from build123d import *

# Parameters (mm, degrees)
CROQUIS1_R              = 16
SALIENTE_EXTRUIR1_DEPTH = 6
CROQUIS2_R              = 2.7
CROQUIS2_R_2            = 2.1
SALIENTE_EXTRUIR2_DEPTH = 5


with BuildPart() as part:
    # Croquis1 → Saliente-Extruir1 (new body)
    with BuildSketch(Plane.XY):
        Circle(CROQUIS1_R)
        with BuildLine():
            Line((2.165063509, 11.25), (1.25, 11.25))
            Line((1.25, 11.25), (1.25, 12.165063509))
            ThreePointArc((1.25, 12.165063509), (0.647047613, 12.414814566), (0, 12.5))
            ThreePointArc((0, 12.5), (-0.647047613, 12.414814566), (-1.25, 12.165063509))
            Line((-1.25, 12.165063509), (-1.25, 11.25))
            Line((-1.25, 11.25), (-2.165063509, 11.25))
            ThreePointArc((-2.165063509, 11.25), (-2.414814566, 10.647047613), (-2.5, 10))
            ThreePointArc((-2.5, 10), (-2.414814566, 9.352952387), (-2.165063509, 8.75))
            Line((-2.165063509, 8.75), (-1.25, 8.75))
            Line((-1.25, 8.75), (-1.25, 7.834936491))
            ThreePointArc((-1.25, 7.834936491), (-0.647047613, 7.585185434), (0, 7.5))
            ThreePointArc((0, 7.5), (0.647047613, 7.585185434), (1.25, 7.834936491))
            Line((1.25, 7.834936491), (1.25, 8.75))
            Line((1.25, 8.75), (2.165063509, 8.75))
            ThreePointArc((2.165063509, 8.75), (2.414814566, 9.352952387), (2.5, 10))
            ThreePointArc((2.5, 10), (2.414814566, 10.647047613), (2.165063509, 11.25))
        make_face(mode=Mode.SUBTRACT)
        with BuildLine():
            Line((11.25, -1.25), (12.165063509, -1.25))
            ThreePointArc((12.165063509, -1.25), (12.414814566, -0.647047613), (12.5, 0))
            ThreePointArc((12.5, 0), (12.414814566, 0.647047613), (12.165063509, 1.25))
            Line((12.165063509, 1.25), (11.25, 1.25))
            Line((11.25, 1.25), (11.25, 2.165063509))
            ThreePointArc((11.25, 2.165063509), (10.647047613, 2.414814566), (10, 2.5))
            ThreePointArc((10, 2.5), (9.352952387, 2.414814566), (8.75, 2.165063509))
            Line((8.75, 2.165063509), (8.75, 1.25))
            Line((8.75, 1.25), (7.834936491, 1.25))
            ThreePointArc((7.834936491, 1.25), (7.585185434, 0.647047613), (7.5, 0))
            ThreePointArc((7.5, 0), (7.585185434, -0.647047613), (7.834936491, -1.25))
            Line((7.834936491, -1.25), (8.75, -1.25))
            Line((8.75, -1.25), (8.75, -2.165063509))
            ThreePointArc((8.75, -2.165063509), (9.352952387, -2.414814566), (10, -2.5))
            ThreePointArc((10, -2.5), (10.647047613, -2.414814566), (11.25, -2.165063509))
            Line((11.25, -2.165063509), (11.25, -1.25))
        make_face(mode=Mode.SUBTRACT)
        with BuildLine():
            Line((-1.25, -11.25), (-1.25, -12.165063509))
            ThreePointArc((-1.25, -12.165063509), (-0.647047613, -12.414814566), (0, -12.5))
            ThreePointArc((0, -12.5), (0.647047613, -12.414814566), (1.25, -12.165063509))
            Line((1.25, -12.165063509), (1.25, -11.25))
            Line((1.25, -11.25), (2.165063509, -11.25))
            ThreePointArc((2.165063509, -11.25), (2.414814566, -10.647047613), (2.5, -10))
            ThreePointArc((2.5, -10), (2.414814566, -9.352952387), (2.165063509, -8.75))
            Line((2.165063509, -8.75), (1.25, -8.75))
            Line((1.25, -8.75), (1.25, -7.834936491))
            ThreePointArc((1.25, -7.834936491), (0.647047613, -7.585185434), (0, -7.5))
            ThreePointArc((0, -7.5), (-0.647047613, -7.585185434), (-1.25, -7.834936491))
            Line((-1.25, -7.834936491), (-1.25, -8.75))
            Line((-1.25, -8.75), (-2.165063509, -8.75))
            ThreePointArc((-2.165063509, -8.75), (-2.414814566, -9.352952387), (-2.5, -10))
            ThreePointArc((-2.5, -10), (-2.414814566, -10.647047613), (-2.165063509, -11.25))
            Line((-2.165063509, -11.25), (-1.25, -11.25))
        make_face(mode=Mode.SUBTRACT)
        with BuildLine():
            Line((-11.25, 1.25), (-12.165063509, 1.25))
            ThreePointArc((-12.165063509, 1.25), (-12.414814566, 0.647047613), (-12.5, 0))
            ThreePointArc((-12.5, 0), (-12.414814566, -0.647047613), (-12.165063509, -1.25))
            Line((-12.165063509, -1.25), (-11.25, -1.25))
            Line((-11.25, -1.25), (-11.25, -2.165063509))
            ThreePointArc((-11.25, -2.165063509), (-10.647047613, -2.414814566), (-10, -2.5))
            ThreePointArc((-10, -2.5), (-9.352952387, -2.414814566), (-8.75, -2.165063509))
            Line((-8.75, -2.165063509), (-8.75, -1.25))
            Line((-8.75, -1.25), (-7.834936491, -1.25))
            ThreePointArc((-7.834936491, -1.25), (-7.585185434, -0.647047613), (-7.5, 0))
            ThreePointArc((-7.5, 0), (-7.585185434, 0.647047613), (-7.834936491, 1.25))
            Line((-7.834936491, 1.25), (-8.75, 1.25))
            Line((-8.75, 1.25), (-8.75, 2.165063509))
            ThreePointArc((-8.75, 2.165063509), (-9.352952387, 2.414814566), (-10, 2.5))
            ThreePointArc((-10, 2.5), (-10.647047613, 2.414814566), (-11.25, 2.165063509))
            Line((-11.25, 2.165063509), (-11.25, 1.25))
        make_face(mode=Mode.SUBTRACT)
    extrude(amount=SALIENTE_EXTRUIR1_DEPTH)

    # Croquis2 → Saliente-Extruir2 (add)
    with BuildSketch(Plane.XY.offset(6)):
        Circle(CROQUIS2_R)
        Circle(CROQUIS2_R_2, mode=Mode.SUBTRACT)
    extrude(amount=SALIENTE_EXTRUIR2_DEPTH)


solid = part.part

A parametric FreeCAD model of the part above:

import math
import FreeCAD as App
import Part
import Sketcher
Q = App.Units.Quantity

doc = App.newDocument("Part")
params = doc.addObject("Spreadsheet::Sheet", "Params")
for row, (alias, value) in enumerate([
    ("sketch1_diameter", "32 mm"),
    ("sketch1_radius", "2.5 mm"),
    ("pad1_length", "6 mm"),
    ("sketch2_diameter", "5.4 mm"),
    ("sketch2_diameter2", "4.2 mm"),
    ("pad2_length", "5 mm"),
], start=1):
    params.set(f"A{row}", alias)
    params.set(f"B{row}", "=" + value)
    params.setAlias(f"B{row}", alias)

body = doc.addObject("PartDesign::Body", "Body")

sketch1 = body.newObject("Sketcher::SketchObject", "Sketch")
sketch1.AttachmentSupport = (doc.getObject("XY_Plane"), [""])
sketch1.MapMode = "FlatFace"
sketch1.addGeometry([
    Part.Circle(App.Vector(0, 0, 0), App.Vector(0, 0, 1), 16),
    Part.LineSegment(App.Vector(-1.2, -12.2, 0), App.Vector(-1.2, -11.2, 0)),
    Part.LineSegment(App.Vector(-1.2, -11.2, 0), App.Vector(-2.2, -11.2, 0)),
    Part.ArcOfCircle(Part.Circle(App.Vector(0, -10, 0), App.Vector(0, 0, 1), 2.5), math.radians(180), math.radians(210)),
    Part.ArcOfCircle(Part.Circle(App.Vector(0, -10, 0), App.Vector(0, 0, 1), 2.5), math.radians(150), math.radians(180)),
    Part.LineSegment(App.Vector(-2.2, -8.8, 0), App.Vector(-1.2, -8.8, 0)),
    Part.LineSegment(App.Vector(-1.2, -8.8, 0), App.Vector(-1.2, -7.8, 0)),
    Part.ArcOfCircle(Part.Circle(App.Vector(0, -10, 0), App.Vector(0, 0, 1), 2.5), math.radians(90), math.radians(120)),
    Part.ArcOfCircle(Part.Circle(App.Vector(0, -10, 0), App.Vector(0, 0, 1), 2.5), math.radians(60), math.radians(90)),
    Part.LineSegment(App.Vector(1.2, -7.8, 0), App.Vector(1.2, -8.8, 0)),
    Part.LineSegment(App.Vector(1.2, -8.8, 0), App.Vector(2.2, -8.8, 0)),
    Part.ArcOfCircle(Part.Circle(App.Vector(0, -10, 0), App.Vector(0, 0, 1), 2.5), math.radians(0), math.radians(30)),
    Part.ArcOfCircle(Part.Circle(App.Vector(0, -10, 0), App.Vector(0, 0, 1), 2.5), math.radians(-30), math.radians(0)),
    Part.LineSegment(App.Vector(2.2, -11.2, 0), App.Vector(1.2, -11.2, 0)),
    Part.LineSegment(App.Vector(1.2, -11.2, 0), App.Vector(1.2, -12.2, 0)),
    Part.ArcOfCircle(Part.Circle(App.Vector(0, -10, 0), App.Vector(0, 0, 1), 2.5), math.radians(-90), math.radians(-60)),
    Part.ArcOfCircle(Part.Circle(App.Vector(0, -10, 0), App.Vector(0, 0, 1), 2.5), math.radians(-120), math.radians(-90)),
    Part.LineSegment(App.Vector(-12.2, 1.2, 0), App.Vector(-11.2, 1.2, 0)),
    Part.LineSegment(App.Vector(-11.2, 1.2, 0), App.Vector(-11.2, 2.2, 0)),
    Part.ArcOfCircle(Part.Circle(App.Vector(-10, 0, 0), App.Vector(0, 0, 1), 2.5), math.radians(90), math.radians(120)),
    Part.ArcOfCircle(Part.Circle(App.Vector(-10, 0, 0), App.Vector(0, 0, 1), 2.5), math.radians(60), math.radians(90)),
    Part.LineSegment(App.Vector(-8.8, 2.2, 0), App.Vector(-8.8, 1.2, 0)),
    Part.LineSegment(App.Vector(-8.8, 1.2, 0), App.Vector(-7.8, 1.2, 0)),
    Part.ArcOfCircle(Part.Circle(App.Vector(-10, 0, 0), App.Vector(0, 0, 1), 2.5), math.radians(0), math.radians(30)),
    Part.ArcOfCircle(Part.Circle(App.Vector(-10, 0, 0), App.Vector(0, 0, 1), 2.5), math.radians(-30), math.radians(0)),
    Part.LineSegment(App.Vector(-7.8, -1.2, 0), App.Vector(-8.8, -1.2, 0)),
    Part.LineSegment(App.Vector(-8.8, -1.2, 0), App.Vector(-8.8, -2.2, 0)),
    Part.ArcOfCircle(Part.Circle(App.Vector(-10, 0, 0), App.Vector(0, 0, 1), 2.5), math.radians(-90), math.radians(-60)),
    Part.ArcOfCircle(Part.Circle(App.Vector(-10, 0, 0), App.Vector(0, 0, 1), 2.5), math.radians(-120), math.radians(-90)),
    Part.LineSegment(App.Vector(-11.2, -2.2, 0), App.Vector(-11.2, -1.2, 0)),
    Part.LineSegment(App.Vector(-11.2, -1.2, 0), App.Vector(-12.2, -1.2, 0)),
    Part.ArcOfCircle(Part.Circle(App.Vector(-10, 0, 0), App.Vector(0, 0, 1), 2.5), math.radians(180), math.radians(210)),
    Part.ArcOfCircle(Part.Circle(App.Vector(-10, 0, 0), App.Vector(0, 0, 1), 2.5), math.radians(150), math.radians(180)),
    Part.LineSegment(App.Vector(12.2, -1.2, 0), App.Vector(11.2, -1.2, 0)),
    Part.LineSegment(App.Vector(11.2, -1.2, 0), App.Vector(11.2, -2.2, 0)),
    Part.ArcOfCircle(Part.Circle(App.Vector(10, 0, 0), App.Vector(0, 0, 1), 2.5), math.radians(-90), math.radians(-60)),
    Part.ArcOfCircle(Part.Circle(App.Vector(10, 0, 0), App.Vector(0, 0, 1), 2.5), math.radians(-120), math.radians(-90)),
    Part.LineSegment(App.Vector(8.8, -2.2, 0), App.Vector(8.8, -1.2, 0)),
    Part.LineSegment(App.Vector(8.8, -1.2, 0), App.Vector(7.8, -1.2, 0)),
    Part.ArcOfCircle(Part.Circle(App.Vector(10, 0, 0), App.Vector(0, 0, 1), 2.5), math.radians(180), math.radians(210)),
    Part.ArcOfCircle(Part.Circle(App.Vector(10, 0, 0), App.Vector(0, 0, 1), 2.5), math.radians(150), math.radians(180)),
    Part.LineSegment(App.Vector(7.8, 1.2, 0), App.Vector(8.8, 1.2, 0)),
    Part.LineSegment(App.Vector(8.8, 1.2, 0), App.Vector(8.8, 2.2, 0)),
    Part.ArcOfCircle(Part.Circle(App.Vector(10, 0, 0), App.Vector(0, 0, 1), 2.5), math.radians(90), math.radians(120)),
    Part.ArcOfCircle(Part.Circle(App.Vector(10, 0, 0), App.Vector(0, 0, 1), 2.5), math.radians(60), math.radians(90)),
    Part.LineSegment(App.Vector(11.2, 2.2, 0), App.Vector(11.2, 1.2, 0)),
    Part.LineSegment(App.Vector(11.2, 1.2, 0), App.Vector(12.2, 1.2, 0)),
    Part.ArcOfCircle(Part.Circle(App.Vector(10, 0, 0), App.Vector(0, 0, 1), 2.5), math.radians(0), math.radians(30)),
    Part.ArcOfCircle(Part.Circle(App.Vector(10, 0, 0), App.Vector(0, 0, 1), 2.5), math.radians(-30), math.radians(0)),
    Part.LineSegment(App.Vector(1.2, 11.2, 0), App.Vector(2.2, 11.2, 0)),
    Part.ArcOfCircle(Part.Circle(App.Vector(0, 10, 0), App.Vector(0, 0, 1), 2.5), math.radians(0), math.radians(30)),
    Part.ArcOfCircle(Part.Circle(App.Vector(0, 10, 0), App.Vector(0, 0, 1), 2.5), math.radians(-30), math.radians(0)),
    Part.LineSegment(App.Vector(2.2, 8.8, 0), App.Vector(1.2, 8.8, 0)),
    Part.LineSegment(App.Vector(1.2, 8.8, 0), App.Vector(1.2, 7.8, 0)),
    Part.ArcOfCircle(Part.Circle(App.Vector(0, 10, 0), App.Vector(0, 0, 1), 2.5), math.radians(-90), math.radians(-60)),
    Part.ArcOfCircle(Part.Circle(App.Vector(0, 10, 0), App.Vector(0, 0, 1), 2.5), math.radians(-120), math.radians(-90)),
    Part.LineSegment(App.Vector(-1.2, 7.8, 0), App.Vector(-1.2, 8.8, 0)),
    Part.LineSegment(App.Vector(-1.2, 8.8, 0), App.Vector(-2.2, 8.8, 0)),
    Part.ArcOfCircle(Part.Circle(App.Vector(0, 10, 0), App.Vector(0, 0, 1), 2.5), math.radians(180), math.radians(210)),
    Part.ArcOfCircle(Part.Circle(App.Vector(0, 10, 0), App.Vector(0, 0, 1), 2.5), math.radians(150), math.radians(180)),
    Part.LineSegment(App.Vector(-2.2, 11.2, 0), App.Vector(-1.2, 11.2, 0)),
    Part.LineSegment(App.Vector(-1.2, 11.2, 0), App.Vector(-1.2, 12.2, 0)),
    Part.ArcOfCircle(Part.Circle(App.Vector(0, 10, 0), App.Vector(0, 0, 1), 2.5), math.radians(90), math.radians(120)),
    Part.ArcOfCircle(Part.Circle(App.Vector(0, 10, 0), App.Vector(0, 0, 1), 2.5), math.radians(60), math.radians(90)),
    Part.LineSegment(App.Vector(1.2, 12.2, 0), App.Vector(1.2, 11.2, 0)),
], False)
sketch1.addConstraint([
    Sketcher.Constraint("Coincident", 1, 2, 2, 1),
    Sketcher.Constraint("Coincident", 2, 2, 3, 2),
    Sketcher.Constraint("Tangent", 3, 1, 4, 2),
    Sketcher.Constraint("Coincident", 4, 1, 5, 1),
    Sketcher.Constraint("Coincident", 5, 2, 6, 1),
    Sketcher.Constraint("Coincident", 6, 2, 7, 2),
    Sketcher.Constraint("Tangent", 7, 1, 8, 2),
    Sketcher.Constraint("Coincident", 8, 1, 9, 1),
    Sketcher.Constraint("Coincident", 9, 2, 10, 1),
    Sketcher.Constraint("Coincident", 10, 2, 11, 2),
    Sketcher.Constraint("Tangent", 11, 1, 12, 2),
    Sketcher.Constraint("Coincident", 12, 1, 13, 1),
    Sketcher.Constraint("Coincident", 13, 2, 14, 1),
    Sketcher.Constraint("Coincident", 14, 2, 15, 2),
    Sketcher.Constraint("Tangent", 15, 1, 16, 2),
    Sketcher.Constraint("Coincident", 16, 1, 1, 1),
    Sketcher.Constraint("Coincident", 17, 2, 18, 1),
    Sketcher.Constraint("Coincident", 18, 2, 19, 2),
    Sketcher.Constraint("Tangent", 19, 1, 20, 2),
    Sketcher.Constraint("Coincident", 20, 1, 21, 1),
    Sketcher.Constraint("Coincident", 21, 2, 22, 1),
    Sketcher.Constraint("Coincident", 22, 2, 23, 2),
    Sketcher.Constraint("Tangent", 23, 1, 24, 2),
    Sketcher.Constraint("Coincident", 24, 1, 25, 1),
    Sketcher.Constraint("Coincident", 25, 2, 26, 1),
    Sketcher.Constraint("Coincident", 26, 2, 27, 2),
    Sketcher.Constraint("Tangent", 27, 1, 28, 2),
    Sketcher.Constraint("Coincident", 28, 1, 29, 1),
    Sketcher.Constraint("Coincident", 29, 2, 30, 1),
    Sketcher.Constraint("Coincident", 30, 2, 31, 2),
    Sketcher.Constraint("Tangent", 31, 1, 32, 2),
    Sketcher.Constraint("Coincident", 32, 1, 17, 1),
    Sketcher.Constraint("Coincident", 33, 2, 34, 1),
    Sketcher.Constraint("Coincident", 34, 2, 35, 2),
    Sketcher.Constraint("Tangent", 35, 1, 36, 2),
    Sketcher.Constraint("Coincident", 36, 1, 37, 1),
    Sketcher.Constraint("Coincident", 37, 2, 38, 1),
    Sketcher.Constraint("Coincident", 38, 2, 39, 2),
    Sketcher.Constraint("Tangent", 39, 1, 40, 2),
    Sketcher.Constraint("Coincident", 40, 1, 41, 1),
    Sketcher.Constraint("Coincident", 41, 2, 42, 1),
    Sketcher.Constraint("Coincident", 42, 2, 43, 2),
    Sketcher.Constraint("Tangent", 43, 1, 44, 2),
    Sketcher.Constraint("Coincident", 44, 1, 45, 1),
    Sketcher.Constraint("Coincident", 45, 2, 46, 1),
    Sketcher.Constraint("Coincident", 46, 2, 47, 2),
    Sketcher.Constraint("Tangent", 47, 1, 48, 2),
    Sketcher.Constraint("Coincident", 48, 1, 33, 1),
    Sketcher.Constraint("Coincident", 49, 2, 50, 2),
    Sketcher.Constraint("Tangent", 50, 1, 51, 2),
    Sketcher.Constraint("Coincident", 51, 1, 52, 1),
    Sketcher.Constraint("Coincident", 52, 2, 53, 1),
    Sketcher.Constraint("Coincident", 53, 2, 54, 2),
    Sketcher.Constraint("Tangent", 54, 1, 55, 2),
    Sketcher.Constraint("Coincident", 55, 1, 56, 1),
    Sketcher.Constraint("Coincident", 56, 2, 57, 1),
    Sketcher.Constraint("Coincident", 57, 2, 58, 2),
    Sketcher.Constraint("Tangent", 58, 1, 59, 2),
    Sketcher.Constraint("Coincident", 59, 1, 60, 1),
    Sketcher.Constraint("Coincident", 60, 2, 61, 1),
    Sketcher.Constraint("Coincident", 61, 2, 62, 2),
    Sketcher.Constraint("Tangent", 62, 1, 63, 2),
    Sketcher.Constraint("Coincident", 63, 1, 64, 1),
    Sketcher.Constraint("Coincident", 64, 2, 49, 1),
    Sketcher.Constraint("Vertical", 1),
    Sketcher.Constraint("Horizontal", 2),
    Sketcher.Constraint("Horizontal", 5),
    Sketcher.Constraint("Vertical", 6),
    Sketcher.Constraint("Vertical", 9),
    Sketcher.Constraint("Horizontal", 10),
    Sketcher.Constraint("Horizontal", 13),
    Sketcher.Constraint("Vertical", 14),
    Sketcher.Constraint("Horizontal", 17),
    Sketcher.Constraint("Vertical", 18),
    Sketcher.Constraint("Vertical", 21),
    Sketcher.Constraint("Horizontal", 22),
    Sketcher.Constraint("Horizontal", 25),
    Sketcher.Constraint("Vertical", 26),
    Sketcher.Constraint("Vertical", 29),
    Sketcher.Constraint("Horizontal", 30),
    Sketcher.Constraint("Horizontal", 33),
    Sketcher.Constraint("Vertical", 34),
    Sketcher.Constraint("Vertical", 37),
    Sketcher.Constraint("Horizontal", 38),
    Sketcher.Constraint("Horizontal", 41),
    Sketcher.Constraint("Vertical", 42),
    Sketcher.Constraint("Vertical", 45),
    Sketcher.Constraint("Horizontal", 46),
    Sketcher.Constraint("Horizontal", 49),
    Sketcher.Constraint("Horizontal", 52),
    Sketcher.Constraint("Vertical", 53),
    Sketcher.Constraint("Vertical", 56),
    Sketcher.Constraint("Horizontal", 57),
    Sketcher.Constraint("Horizontal", 60),
    Sketcher.Constraint("Vertical", 61),
    Sketcher.Constraint("Vertical", 64),
    Sketcher.Constraint("Coincident", 0, 3, -1, 1),
    Sketcher.Constraint("Coincident", 7, 3, 3, 3),
    Sketcher.Constraint("Coincident", 11, 3, 3, 3),
    Sketcher.Constraint("Coincident", 15, 3, 3, 3),
    Sketcher.Constraint("Coincident", 23, 3, 19, 3),
    Sketcher.Constraint("Coincident", 27, 3, 19, 3),
    Sketcher.Constraint("Coincident", 31, 3, 19, 3),
    Sketcher.Constraint("Coincident", 39, 3, 35, 3),
    Sketcher.Constraint("Coincident", 43, 3, 35, 3),
    Sketcher.Constraint("Coincident", 47, 3, 35, 3),
    Sketcher.Constraint("Coincident", 54, 3, 50, 3),
    Sketcher.Constraint("Coincident", 58, 3, 50, 3),
    Sketcher.Constraint("Coincident", 62, 3, 50, 3),
    Sketcher.Constraint("Equal", 3, 4),
    Sketcher.Constraint("Equal", 4, 7),
    Sketcher.Constraint("Equal", 7, 8),
    Sketcher.Constraint("Equal", 8, 11),
    Sketcher.Constraint("Equal", 11, 12),
    Sketcher.Constraint("Equal", 12, 15),
    Sketcher.Constraint("Equal", 15, 16),
    Sketcher.Constraint("Equal", 16, 19),
    Sketcher.Constraint("Equal", 19, 20),
    Sketcher.Constraint("Equal", 20, 23),
    Sketcher.Constraint("Equal", 23, 24),
    Sketcher.Constraint("Equal", 24, 27),
    Sketcher.Constraint("Equal", 27, 28),
    Sketcher.Constraint("Equal", 28, 31),
    Sketcher.Constraint("Equal", 31, 32),
    Sketcher.Constraint("Equal", 32, 35),
    Sketcher.Constraint("Equal", 35, 36),
    Sketcher.Constraint("Equal", 36, 39),
    Sketcher.Constraint("Equal", 39, 40),
    Sketcher.Constraint("Equal", 40, 43),
    Sketcher.Constraint("Equal", 43, 44),
    Sketcher.Constraint("Equal", 44, 47),
    Sketcher.Constraint("Equal", 47, 48),
    Sketcher.Constraint("Equal", 48, 50),
    Sketcher.Constraint("Equal", 50, 51),
    Sketcher.Constraint("Equal", 51, 54),
    Sketcher.Constraint("Equal", 54, 55),
    Sketcher.Constraint("Equal", 55, 58),
    Sketcher.Constraint("Equal", 58, 59),
    Sketcher.Constraint("Equal", 59, 62),
    Sketcher.Constraint("Equal", 62, 63),
    Sketcher.Constraint("Symmetric", 19, 3, 35, 3, -1, 1),
    Sketcher.Constraint("Symmetric", 3, 3, 50, 3, -1, 1),
    Sketcher.Constraint("Symmetric", 17, 2, 33, 2, -1, 1),
    Sketcher.Constraint("Symmetric", 21, 2, 37, 2, -1, 1),
    Sketcher.Constraint("Symmetric", 25, 2, 41, 2, -1, 1),
    Sketcher.Constraint("Symmetric", 29, 2, 45, 2, -1, 1),
    Sketcher.Constraint("Symmetric", 5, 2, 52, 2, -1, 1),
    Sketcher.Constraint("Symmetric", 9, 2, 56, 2, -1, 1),
    Sketcher.Constraint("Symmetric", 13, 2, 60, 2, -1, 1),
    Sketcher.Constraint("Symmetric", 1, 2, 64, 2, -1, 1),
    Sketcher.Constraint("Symmetric", 6, 2, 8, 1, -2),
    Sketcher.Constraint("Symmetric", 1, 2, 13, 2, -2),
    Sketcher.Constraint("Symmetric", 29, 2, 33, 2, -2),
    Sketcher.Constraint("Symmetric", 27, 1, 35, 1, -2),
    Sketcher.Constraint("Symmetric", 25, 2, 37, 2, -2),
    Sketcher.Constraint("PointOnObject", 7, 1, -2),
    Sketcher.Constraint("PointOnObject", 15, 1, -2),
    Sketcher.Constraint("PointOnObject", 23, 1, -1),
    Sketcher.Constraint("PointOnObject", 31, 1, -1),
    Sketcher.Constraint("PointOnObject", 39, 1, -1),
    Sketcher.Constraint("PointOnObject", 47, 1, -1),
    Sketcher.Constraint("PointOnObject", 54, 1, -2),
    Sketcher.Constraint("PointOnObject", 62, 1, -2),
    Sketcher.Constraint("Horizontal", 16, 3, 3, 1),
    Sketcher.Constraint("Horizontal", 5, 2, 9, 2),
    Sketcher.Constraint("Horizontal", 3, 1, 11, 1),
    Sketcher.Constraint("Horizontal", 18, 2, 20, 1),
    Sketcher.Constraint("Horizontal", 17, 2, 21, 2),
    Sketcher.Constraint("Horizontal", 63, 3, 50, 1),
    Sketcher.Constraint("Horizontal", 50, 1, 58, 1),
    Sketcher.Constraint("Vertical", 2, 2, 4, 1),
    Sketcher.Constraint("Vertical", 1, 2, 5, 2),
    Sketcher.Constraint("Vertical", 32, 3, 19, 1),
    Sketcher.Constraint("Vertical", 19, 1, 27, 1),
    Sketcher.Constraint("Vertical", 35, 1, 43, 1),
    Sketcher.Constraint("Equal", 13, 17),
    Sketcher.Constraint("Equal", 60, 1),
    Sketcher.Constraint("Equal", 14, 18),
    Sketcher.Constraint("Diameter", 0, Q("32 mm")),
    Sketcher.Constraint("Radius", 3, Q("2.5 mm")),
    Sketcher.Constraint("DistanceY", 3, 3, -1, 1, Q("10 mm")),
    Sketcher.Constraint("DistanceX", 19, 3, -1, 1, Q("10 mm")),
    Sketcher.Constraint("DistanceX", 1, 2, -1, 1, Q("1.25 mm")),
])
sketch1.setExpression("Constraints[178]", "Params.sketch1_diameter")
sketch1.setExpression("Constraints[179]", "Params.sketch1_radius")
pad1 = body.newObject("PartDesign::Pad", "Pad")
pad1.Profile = sketch1
pad1.setExpression("Length", "Params.pad1_length")

sketch2 = body.newObject("Sketcher::SketchObject", "Sketch001")
sketch2.AttachmentSupport = (doc.getObject("XY_Plane"), [""])
sketch2.MapMode = "FlatFace"
sketch2.AttachmentOffset = App.Placement(App.Vector(0, 0, 6), App.Rotation())
sketch2.addGeometry([
    Part.Circle(App.Vector(0, 0, 0), App.Vector(0, 0, 1), 2.7),
    Part.Circle(App.Vector(0, 0, 0), App.Vector(0, 0, 1), 2.1),
], False)
sketch2.addConstraint([
    Sketcher.Constraint("Coincident", 0, 3, -1, 1),
    Sketcher.Constraint("Coincident", 1, 3, -1, 1),
    Sketcher.Constraint("Diameter", 0, Q("5.4 mm")),
    Sketcher.Constraint("Diameter", 1, Q("4.2 mm")),
])
sketch2.setExpression("Constraints[2]", "Params.sketch2_diameter")
sketch2.setExpression("Constraints[3]", "Params.sketch2_diameter2")
pad2 = body.newObject("PartDesign::Pad", "Pad001")
pad2.Profile = sketch2
pad2.setExpression("Length", "Params.pad2_length")

doc.recompute()
